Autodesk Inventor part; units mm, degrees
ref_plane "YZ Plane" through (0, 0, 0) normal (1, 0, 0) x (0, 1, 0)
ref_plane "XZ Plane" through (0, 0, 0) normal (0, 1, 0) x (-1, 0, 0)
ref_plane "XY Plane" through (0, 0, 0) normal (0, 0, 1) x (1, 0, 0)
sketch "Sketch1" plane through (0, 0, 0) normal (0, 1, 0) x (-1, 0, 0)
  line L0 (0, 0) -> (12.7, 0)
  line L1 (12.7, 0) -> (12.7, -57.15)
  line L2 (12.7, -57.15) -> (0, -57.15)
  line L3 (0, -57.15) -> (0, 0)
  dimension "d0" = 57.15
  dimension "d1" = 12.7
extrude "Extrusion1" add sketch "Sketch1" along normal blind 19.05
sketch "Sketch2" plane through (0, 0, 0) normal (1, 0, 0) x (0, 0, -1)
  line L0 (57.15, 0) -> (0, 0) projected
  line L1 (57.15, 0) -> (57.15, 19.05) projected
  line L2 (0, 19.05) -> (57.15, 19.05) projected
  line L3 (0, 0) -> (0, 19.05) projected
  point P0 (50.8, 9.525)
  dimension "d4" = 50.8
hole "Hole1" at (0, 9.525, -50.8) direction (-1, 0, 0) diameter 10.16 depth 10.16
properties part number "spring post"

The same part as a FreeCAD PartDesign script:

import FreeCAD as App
import Part
import Sketcher
Q = App.Units.Quantity

doc = App.newDocument("Part")
params = doc.addObject("Spreadsheet::Sheet", "Params")
for row, (alias, value) in enumerate([
    ("sketch1_width", "0.5 in"),
    ("sketch1_height", "2.25 in"),
    ("pad1_length", "0.75 in"),
    ("sketch2_diameter", "0.4 in"),
    ("hole_diameter", "0.4 in"),
    ("hole_depth", "0.4 in"),
], start=1):
    params.set(f"A{row}", alias)
    params.set(f"B{row}", "=" + value)
    params.setAlias(f"B{row}", alias)

body = doc.addObject("PartDesign::Body", "Body")

sketch1 = doc.addObject("Sketcher::SketchObject", "Sketch")
body.addObject(sketch1)
sketch1.AttachmentSupport = (doc.XZ_Plane, [""])
sketch1.MapMode = "FlatFace"
sketch1.addGeometry([
    Part.LineSegment(App.Vector(-13, 0, 0), App.Vector(0, 0, 0)),
    Part.LineSegment(App.Vector(0, 0, 0), App.Vector(0, -57, 0)),
    Part.LineSegment(App.Vector(0, -57, 0), App.Vector(-13, -57, 0)),
    Part.LineSegment(App.Vector(-13, -57, 0), App.Vector(-13, 0, 0)),
], False)
sketch1.addConstraint([
    Sketcher.Constraint("Coincident", 0, 2, 1, 1),
    Sketcher.Constraint("Coincident", 1, 2, 2, 1),
    Sketcher.Constraint("Coincident", 2, 2, 3, 1),
    Sketcher.Constraint("Coincident", 3, 2, 0, 1),
    Sketcher.Constraint("Horizontal", 0),
    Sketcher.Constraint("Vertical", 1),
    Sketcher.Constraint("Horizontal", 2),
    Sketcher.Constraint("Vertical", 3),
    Sketcher.Constraint("Coincident", 0, 2, -1, 1),
    Sketcher.Constraint("DistanceX", 0, 1, 0, 2, Q("0.5 in")),
    Sketcher.Constraint("DistanceY", 1, 2, 1, 1, Q("2.25 in")),
])
sketch1.setExpression("Constraints[9]", "Params.sketch1_width")
sketch1.setExpression("Constraints[10]", "Params.sketch1_height")
pad1 = doc.addObject("PartDesign::Pad", "Pad")
body.addObject(pad1)
pad1.Profile = sketch1
pad1.setExpression("Length", "Params.pad1_length")
pad1.Reversed = True

sketch2 = doc.addObject("Sketcher::SketchObject", "Sketch001")
body.addObject(sketch2)
sketch2.AttachmentSupport = (doc.YZ_Plane, [""])
sketch2.MapMode = "FlatFace"
sketch2.addGeometry(Part.Circle(App.Vector(10, -51, 0), App.Vector(0, 0, 1), 5), False)
sketch2.addConstraint([
    Sketcher.Constraint("Diameter", 0, Q("0.4 in")),
    Sketcher.Constraint("DistanceY", 0, 3, -1, 1, Q("2 in")),
    Sketcher.Constraint("DistanceX", -1, 1, 0, 3, Q("0.375 in")),
])
sketch2.setExpression("Constraints[0]", "Params.sketch2_diameter")
doc.recompute()
hole = doc.addObject("PartDesign::Hole", "Hole")
body.addObject(hole)
hole.Profile = sketch2
hole.ThreadType = "None"
hole.setExpression("Diameter", "Params.hole_diameter")
hole.DepthType = "Dimension"
hole.setExpression("Depth", "Params.hole_depth")
hole.DrillPoint = "Flat"

doc.recompute()
